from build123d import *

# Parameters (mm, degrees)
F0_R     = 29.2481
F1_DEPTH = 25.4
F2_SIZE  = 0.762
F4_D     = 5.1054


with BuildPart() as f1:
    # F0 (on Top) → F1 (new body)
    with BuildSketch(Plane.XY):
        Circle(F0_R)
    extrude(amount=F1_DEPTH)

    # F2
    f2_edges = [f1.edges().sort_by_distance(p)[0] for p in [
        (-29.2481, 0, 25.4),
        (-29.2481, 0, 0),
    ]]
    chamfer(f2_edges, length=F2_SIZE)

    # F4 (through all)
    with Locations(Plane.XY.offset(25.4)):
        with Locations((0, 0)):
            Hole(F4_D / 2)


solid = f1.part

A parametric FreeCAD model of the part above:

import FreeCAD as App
import Part
import Sketcher

V = App.Vector
Q = App.Units.Quantity


def edges_at(feature, points):
    """Names of the edges that pass closest to the given points."""
    edges = feature.Shape.Edges
    near = lambda p: min(range(len(edges)), key=lambda i: edges[i].distToShape(Part.Vertex(*p))[0])
    return sorted({f"Edge{near(p) + 1}" for p in points})

doc = App.newDocument("Part")
params = doc.addObject("Spreadsheet::Sheet", "Params")
for row, (alias, value) in enumerate([
    ("sketch1_diameter", "2.303 in"),
    ("pad1_length", "1 in"),
    ("chamfer_size", "0.03 in"),
    ("sketch2_diameter", "0.201 in"),
    ("hole_diameter", "0.201 in"),
], start=1):
    params.set(f"A{row}", alias)
    params.set(f"B{row}", "=" + value)
    params.setAlias(f"B{row}", alias)

body = doc.addObject("PartDesign::Body", "Body")

# Sketch on XY plane
sketch1 = body.newObject("Sketcher::SketchObject", "Sketch")
sketch1.AttachmentSupport = (doc.getObject("XY_Plane"), [""])
sketch1.MapMode = "FlatFace"
sketch1.addGeometry(Part.Circle(V(0, 0, 0), V(0, 0, 1), 29), False)
sketch1.addConstraint([
    Sketcher.Constraint("Coincident", 0, 3, -1, 1),
    Sketcher.Constraint("Diameter", 0, Q("2.303 in")),
])
sketch1.setExpression("Constraints[1]", "Params.sketch1_diameter")
pad1 = body.newObject("PartDesign::Pad", "Pad")
pad1.Profile = sketch1
pad1.setExpression("Length", "Params.pad1_length")
doc.recompute()

chamfer = body.newObject("PartDesign::Chamfer", "Chamfer")
chamfer.Base = (pad1, edges_at(pad1, [(-29.248, 0, 25.4), (-29.248, 0, 0)]))
chamfer.setExpression("Size", "Params.chamfer_size")

# Sketch on XY plane
sketch2 = body.newObject("Sketcher::SketchObject", "Sketch001")
sketch2.AttachmentSupport = (doc.getObject("XY_Plane"), [""])
sketch2.MapMode = "FlatFace"
sketch2.AttachmentOffset = App.Placement(V(0, 0, 1 * 25.4), App.Rotation())
sketch2.addGeometry(Part.Circle(V(0, 0, 0), V(0, 0, 1), 2.6), False)
sketch2.addConstraint([
    Sketcher.Constraint("Coincident", 0, 3, -1, 1),
    Sketcher.Constraint("Diameter", 0, Q("0.201 in")),
])
sketch2.setExpression("Constraints[1]", "Params.sketch2_diameter")
doc.recompute()
hole = body.newObject("PartDesign::Hole", "Hole")
hole.Profile = sketch2
hole.ThreadType = "None"
hole.setExpression("Diameter", "Params.hole_diameter")
hole.DepthType = "ThroughAll"

doc.recompute()
